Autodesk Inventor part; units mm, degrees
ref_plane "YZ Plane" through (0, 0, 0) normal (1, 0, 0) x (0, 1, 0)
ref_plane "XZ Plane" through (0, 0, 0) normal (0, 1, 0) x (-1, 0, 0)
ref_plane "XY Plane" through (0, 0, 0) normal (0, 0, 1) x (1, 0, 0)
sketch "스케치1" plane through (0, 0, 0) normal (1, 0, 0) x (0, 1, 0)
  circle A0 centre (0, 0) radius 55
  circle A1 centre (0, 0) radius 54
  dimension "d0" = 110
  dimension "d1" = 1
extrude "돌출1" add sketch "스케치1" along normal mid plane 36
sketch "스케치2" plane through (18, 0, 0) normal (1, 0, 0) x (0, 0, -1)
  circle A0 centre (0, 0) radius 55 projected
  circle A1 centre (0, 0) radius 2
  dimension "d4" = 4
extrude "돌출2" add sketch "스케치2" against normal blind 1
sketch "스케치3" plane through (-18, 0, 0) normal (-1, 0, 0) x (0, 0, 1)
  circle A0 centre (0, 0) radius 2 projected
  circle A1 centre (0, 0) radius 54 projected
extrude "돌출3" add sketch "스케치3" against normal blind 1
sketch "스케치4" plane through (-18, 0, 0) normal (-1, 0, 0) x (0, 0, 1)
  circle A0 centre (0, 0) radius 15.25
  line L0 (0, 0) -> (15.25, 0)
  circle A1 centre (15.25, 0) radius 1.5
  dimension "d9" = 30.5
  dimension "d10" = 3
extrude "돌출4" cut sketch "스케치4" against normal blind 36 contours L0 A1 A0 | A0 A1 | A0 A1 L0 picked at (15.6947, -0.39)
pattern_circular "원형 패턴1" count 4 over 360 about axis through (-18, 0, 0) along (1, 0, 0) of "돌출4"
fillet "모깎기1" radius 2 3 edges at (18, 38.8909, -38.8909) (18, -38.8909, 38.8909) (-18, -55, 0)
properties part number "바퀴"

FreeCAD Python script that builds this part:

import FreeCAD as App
import Part
import Sketcher

V = App.Vector
Q = App.Units.Quantity


def edges_at(feature, points):
    """Names of the edges that pass closest to the given points."""
    edges = feature.Shape.Edges
    near = lambda p: min(range(len(edges)), key=lambda i: edges[i].distToShape(Part.Vertex(*p))[0])
    return sorted({f"Edge{near(p) + 1}" for p in points})

doc = App.newDocument("Part")
params = doc.addObject("Spreadsheet::Sheet", "Params")
for row, (alias, value) in enumerate([
    ("sketch1_diameter", "110 mm"),
    ("sketch1_diameter2", "108 mm"),
    ("pad1_length", "36 mm"),
    ("sketch2_diameter", "4 mm"),
    ("sketch2_diameter2", "110 mm"),
    ("pad2_length", "1 mm"),
    ("sketch3_diameter", "108 mm"),
    ("sketch3_diameter2", "4 mm"),
    ("pad3_length", "1 mm"),
    ("sketch4_diameter", "3 mm"),
    ("pocket1_length", "36 mm"),
    ("fillet_radius", "2 mm"),
], start=1):
    params.set(f"A{row}", alias)
    params.set(f"B{row}", "=" + value)
    params.setAlias(f"B{row}", alias)

body = doc.addObject("PartDesign::Body", "Body")

# Sketch on YZ plane
sketch1 = body.newObject("Sketcher::SketchObject", "Sketch")
sketch1.AttachmentSupport = (doc.getObject("YZ_Plane"), [""])
sketch1.MapMode = "FlatFace"
sketch1.addGeometry([
    Part.Circle(V(0, 0, 0), V(0, 0, 1), 55),
    Part.Circle(V(0, 0, 0), V(0, 0, 1), 54),
], False)
sketch1.addConstraint([
    Sketcher.Constraint("Coincident", 0, 3, -1, 1),
    Sketcher.Constraint("Coincident", 1, 3, -1, 1),
    Sketcher.Constraint("Diameter", 0, Q("110 mm")),
    Sketcher.Constraint("Diameter", 1, Q("108 mm")),
])
sketch1.setExpression("Constraints[2]", "Params.sketch1_diameter")
sketch1.setExpression("Constraints[3]", "Params.sketch1_diameter2")
pad1 = body.newObject("PartDesign::Pad", "Pad")
pad1.Profile = sketch1
pad1.setExpression("Length", "Params.pad1_length")
pad1.Midplane = True

# Sketch on YZ plane
sketch2 = body.newObject("Sketcher::SketchObject", "Sketch001")
sketch2.AttachmentSupport = (doc.getObject("YZ_Plane"), [""])
sketch2.MapMode = "FlatFace"
sketch2.AttachmentOffset = App.Placement(V(0, 0, 18), App.Rotation())
sketch2.addGeometry([
    Part.Circle(V(0, 0, 0), V(0, 0, 1), 55),
    Part.Circle(V(0, 0, 0), V(0, 0, 1), 2),
], False)
sketch2.addConstraint([
    Sketcher.Constraint("Coincident", 0, 3, -1, 1),
    Sketcher.Constraint("Coincident", 1, 3, -1, 1),
    Sketcher.Constraint("Diameter", 1, Q("4 mm")),
    Sketcher.Constraint("Diameter", 0, Q("110 mm")),
])
sketch2.setExpression("Constraints[2]", "Params.sketch2_diameter")
sketch2.setExpression("Constraints[3]", "Params.sketch2_diameter2")
pad2 = body.newObject("PartDesign::Pad", "Pad001")
pad2.Profile = sketch2
pad2.setExpression("Length", "Params.pad2_length")
pad2.Reversed = True

# Sketch on YZ plane
sketch3 = body.newObject("Sketcher::SketchObject", "Sketch002")
sketch3.AttachmentSupport = (doc.getObject("YZ_Plane"), [""])
sketch3.MapMode = "FlatFace"
sketch3.AttachmentOffset = App.Placement(V(0, 0, -18), App.Rotation())
sketch3.addGeometry([
    Part.Circle(V(0, 0, 0), V(0, 0, 1), 54),
    Part.Circle(V(0, 0, 0), V(0, 0, 1), 2),
], False)
sketch3.addConstraint([
    Sketcher.Constraint("Coincident", 0, 3, -1, 1),
    Sketcher.Constraint("Coincident", 1, 3, -1, 1),
    Sketcher.Constraint("Diameter", 0, Q("108 mm")),
    Sketcher.Constraint("Diameter", 1, Q("4 mm")),
])
sketch3.setExpression("Constraints[2]", "Params.sketch3_diameter")
sketch3.setExpression("Constraints[3]", "Params.sketch3_diameter2")
pad3 = body.newObject("PartDesign::Pad", "Pad002")
pad3.Profile = sketch3
pad3.setExpression("Length", "Params.pad3_length")

# Sketch on YZ plane
sketch4 = body.newObject("Sketcher::SketchObject", "Sketch003")
sketch4.AttachmentSupport = (doc.getObject("YZ_Plane"), [""])
sketch4.MapMode = "FlatFace"
sketch4.AttachmentOffset = App.Placement(V(0, 0, -18), App.Rotation())
sketch4.addGeometry(Part.Circle(V(0, 15.2, 0), V(0, 0, 1), 1.5), False)
sketch4.addConstraint([
    Sketcher.Constraint("PointOnObject", 0, 3, -2),
    Sketcher.Constraint("Diameter", 0, Q("3 mm")),
    Sketcher.Constraint("DistanceY", -1, 1, 0, 3, Q("15.25 mm")),
])
sketch4.setExpression("Constraints[1]", "Params.sketch4_diameter")
pocket1 = body.newObject("PartDesign::Pocket", "Pocket")
pocket1.Profile = sketch4
pocket1.setExpression("Length", "Params.pocket1_length")
pocket1.Reversed = True
doc.recompute()

polarpattern = body.newObject("PartDesign::PolarPattern", "PolarPattern")
polarpattern.Originals = [pocket1]
polarpattern.Axis = (doc.getObject("X_Axis"), [""])
polarpattern.Angle = 360
polarpattern.Occurrences = 4
body.Tip = polarpattern
doc.recompute()

fillet = body.newObject("PartDesign::Fillet", "Fillet")
fillet.Base = (polarpattern, edges_at(polarpattern, [(18, 38.891, -38.891), (18, -38.891, 38.891), (-18, -55, 0)]))
fillet.setExpression("Radius", "Params.fillet_radius")

doc.recompute()
